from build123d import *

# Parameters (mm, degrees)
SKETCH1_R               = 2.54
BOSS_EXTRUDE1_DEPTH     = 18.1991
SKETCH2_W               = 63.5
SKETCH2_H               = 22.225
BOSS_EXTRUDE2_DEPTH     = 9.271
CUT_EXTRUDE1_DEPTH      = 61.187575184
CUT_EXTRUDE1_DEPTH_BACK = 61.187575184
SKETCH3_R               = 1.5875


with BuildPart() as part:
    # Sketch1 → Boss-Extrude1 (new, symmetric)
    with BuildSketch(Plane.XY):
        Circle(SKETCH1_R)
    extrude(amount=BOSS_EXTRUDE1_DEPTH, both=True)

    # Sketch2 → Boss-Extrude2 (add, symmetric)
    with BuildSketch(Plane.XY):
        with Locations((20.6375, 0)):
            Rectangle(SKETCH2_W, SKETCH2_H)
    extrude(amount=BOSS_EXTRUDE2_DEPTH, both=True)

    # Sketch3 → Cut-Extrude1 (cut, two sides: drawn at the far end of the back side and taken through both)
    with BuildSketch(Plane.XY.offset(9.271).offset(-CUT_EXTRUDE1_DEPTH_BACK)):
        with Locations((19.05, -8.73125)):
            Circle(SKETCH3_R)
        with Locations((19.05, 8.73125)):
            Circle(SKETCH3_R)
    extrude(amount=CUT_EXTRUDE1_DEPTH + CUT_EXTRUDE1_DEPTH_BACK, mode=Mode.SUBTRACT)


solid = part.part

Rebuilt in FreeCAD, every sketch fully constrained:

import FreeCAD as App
import Part
import Sketcher

V = App.Vector
Q = App.Units.Quantity


def add_polygon(sketch, points):
    """Adds a closed chain of lines whose ends are joined by coincident constraints."""
    first, n = sketch.GeometryCount, len(points)
    for a, b in zip(points, points[1:] + points[:1]):
        sketch.addGeometry(Part.LineSegment(App.Vector(*a, 0), App.Vector(*b, 0)), False)
    for i in range(n):
        sketch.addConstraint(Sketcher.Constraint("Coincident", first + i, 2, first + (i + 1) % n, 1))

doc = App.newDocument("Part")
body = doc.addObject("PartDesign::Body", "Body")

sketch1 = body.newObject("Sketcher::SketchObject", "Sketch")
sketch1.AttachmentSupport = (doc.getObject("XY_Plane"), [""])
sketch1.MapMode = "FlatFace"
sketch1.addGeometry(Part.Circle(V(0, 0, 0), V(0, 0, 1), 2.5), False)
sketch1.addConstraint([
    Sketcher.Constraint("Coincident", 0, 3, -1, 1),
    Sketcher.Constraint("Diameter", 0, Q("0.2 in")),
])
pad1 = body.newObject("PartDesign::Pad", "Pad")
pad1.Profile = sketch1
pad1.Length = Q("1.433 in")
pad1.Midplane = True

sketch2 = body.newObject("Sketcher::SketchObject", "Sketch001")
sketch2.AttachmentSupport = (doc.getObject("XY_Plane"), [""])
sketch2.MapMode = "FlatFace"
add_polygon(sketch2, [(-11, 11), (-11, -11), (52, -11), (52, 11)])
sketch2.addConstraint([
    Sketcher.Constraint("Vertical", 0),
    Sketcher.Constraint("Horizontal", 1),
    Sketcher.Constraint("Vertical", 2),
    Sketcher.Constraint("Horizontal", 3),
    Sketcher.Constraint("DistanceX", 1, 1, 1, 2, Q("2.5 in")),
    Sketcher.Constraint("DistanceY", 0, 2, 0, 1, Q("0.875 in")),
    Sketcher.Constraint("DistanceX", 0, 2, -1, 1, Q("0.4375 in")),
    Sketcher.Constraint("DistanceY", 0, 2, -1, 1, Q("0.4375 in")),
])
pad2 = body.newObject("PartDesign::Pad", "Pad001")
pad2.Profile = sketch2
pad2.Length = Q("0.73 in")
pad2.Midplane = True

sketch3 = body.newObject("Sketcher::SketchObject", "Sketch002")
sketch3.AttachmentSupport = (doc.getObject("XY_Plane"), [""])
sketch3.MapMode = "FlatFace"
sketch3.AttachmentOffset = App.Placement(V(0, 0, 0.365 * 25.4), App.Rotation())
sketch3.addGeometry([
    Part.Circle(V(19.1, -8.7, 0), V(0, 0, 1), 1.6),
    Part.Circle(V(19.1, 8.7, 0), V(0, 0, 1), 1.6),
], False)
sketch3.addConstraint([
    Sketcher.Constraint("Equal", 0, 1),
    Sketcher.Constraint("Symmetric", 0, 3, 1, 3, -1),
    Sketcher.Constraint("Diameter", 0, Q("0.125 in")),
    Sketcher.Constraint("DistanceX", -1, 1, 0, 3, Q("0.75 in")),
    Sketcher.Constraint("DistanceY", 0, 3, -1, 1, Q("0.34375 in")),
])
pocket1 = body.newObject("PartDesign::Pocket", "Pocket")
pocket1.Profile = sketch3
pocket1.Type = "ThroughAll"
pocket1.Midplane = True

doc.recompute()
